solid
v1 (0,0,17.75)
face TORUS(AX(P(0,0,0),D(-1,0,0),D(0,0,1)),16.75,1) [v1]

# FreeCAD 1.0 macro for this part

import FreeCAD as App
import Part
import Sketcher

V = App.Vector

doc = App.newDocument("Part")
params = doc.addObject("Spreadsheet::Sheet", "Params")
for row, (alias, value) in enumerate([
    ("sketch1_diameter", "2 mm"),
    ("revolution_angle", "360 deg"),
], start=1):
    params.set(f"A{row}", alias)
    params.set(f"B{row}", "=" + value)
    params.setAlias(f"B{row}", alias)

body = doc.addObject("PartDesign::Body", "Body")

# Sketch on XY plane
sketch1 = body.newObject("Sketcher::SketchObject", "Sketch")
sketch1.AttachmentSupport = (doc.getObject("XY_Plane"), [""])
sketch1.MapMode = "FlatFace"
sketch1.addGeometry(Part.Circle(V(0, 16.75, 0), V(0, 0, 1), 1), False)
sketch1.addConstraint([
    Sketcher.Constraint("PointOnObject", 0, 3, -2),
    Sketcher.Constraint("Diameter", 0, 2.0),
    Sketcher.Constraint("DistanceY", -1, 1, 0, 3, 16.75),
])
sketch1.setExpression("Constraints[1]", "Params.sketch1_diameter")
revolution = body.newObject("PartDesign::Revolution", "Revolution")
revolution.Profile = sketch1
revolution.ReferenceAxis = (sketch1, ["H_Axis"])
revolution.setExpression("Angle", "Params.revolution_angle")

doc.recompute()
